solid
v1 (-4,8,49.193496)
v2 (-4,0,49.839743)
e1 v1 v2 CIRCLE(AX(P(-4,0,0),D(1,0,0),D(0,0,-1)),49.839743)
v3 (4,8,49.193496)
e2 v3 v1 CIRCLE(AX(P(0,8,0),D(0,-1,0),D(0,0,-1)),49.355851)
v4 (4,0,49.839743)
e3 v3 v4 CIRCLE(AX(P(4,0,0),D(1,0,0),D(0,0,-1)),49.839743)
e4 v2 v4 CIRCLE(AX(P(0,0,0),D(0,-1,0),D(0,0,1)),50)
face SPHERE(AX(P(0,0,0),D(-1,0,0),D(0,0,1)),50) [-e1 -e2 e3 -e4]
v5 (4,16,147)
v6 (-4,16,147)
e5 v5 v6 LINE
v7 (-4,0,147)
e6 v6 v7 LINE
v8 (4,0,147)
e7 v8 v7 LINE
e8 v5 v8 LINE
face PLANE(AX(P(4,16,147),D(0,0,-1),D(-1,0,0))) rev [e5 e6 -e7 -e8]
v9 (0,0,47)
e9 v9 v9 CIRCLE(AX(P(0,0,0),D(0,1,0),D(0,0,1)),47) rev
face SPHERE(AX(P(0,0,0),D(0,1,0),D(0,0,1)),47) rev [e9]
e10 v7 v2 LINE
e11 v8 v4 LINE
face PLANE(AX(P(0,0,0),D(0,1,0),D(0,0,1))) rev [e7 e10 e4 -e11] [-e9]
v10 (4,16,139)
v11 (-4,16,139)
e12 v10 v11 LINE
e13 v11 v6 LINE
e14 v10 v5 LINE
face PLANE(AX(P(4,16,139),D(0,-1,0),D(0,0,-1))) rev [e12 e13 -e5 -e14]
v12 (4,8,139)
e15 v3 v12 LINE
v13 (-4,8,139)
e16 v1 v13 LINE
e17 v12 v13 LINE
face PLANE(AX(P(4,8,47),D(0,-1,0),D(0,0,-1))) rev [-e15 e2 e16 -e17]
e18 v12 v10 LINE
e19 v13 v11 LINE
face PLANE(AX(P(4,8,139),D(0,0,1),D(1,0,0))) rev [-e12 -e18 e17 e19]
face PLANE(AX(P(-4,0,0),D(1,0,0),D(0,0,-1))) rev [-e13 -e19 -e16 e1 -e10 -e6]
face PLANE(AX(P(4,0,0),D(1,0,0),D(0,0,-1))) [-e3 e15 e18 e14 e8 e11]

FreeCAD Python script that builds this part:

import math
import FreeCAD as App
import Part
import Sketcher


def faces_at(feature, points):
    """Names of the faces that lie closest to the given points."""
    faces = feature.Shape.Faces
    near = lambda p: min(range(len(faces)), key=lambda i: faces[i].distToShape(Part.Vertex(*p))[0])
    return sorted({f"Face{near(p) + 1}" for p in points})

doc = App.newDocument("Part")
body = doc.addObject("PartDesign::Body", "Body")

sketch1 = body.newObject("Sketcher::SketchObject", "Sketch")
sketch1.AttachmentSupport = (doc.getObject("XZ_Plane"), [""])
sketch1.MapMode = "FlatFace"
sketch1.addGeometry([
    Part.LineSegment(App.Vector(-50, 0, 0), App.Vector(50, 0, 0)),
    Part.ArcOfCircle(Part.Circle(App.Vector(0, 0, 0), App.Vector(0, 0, 1), 50), math.radians(180), math.radians(360)),
], False)
sketch1.addConstraint([
    Sketcher.Constraint("Coincident", 0, 1, 1, 1),
    Sketcher.Constraint("Coincident", 1, 2, 0, 2),
    Sketcher.Constraint("Horizontal", 0),
    Sketcher.Constraint("Coincident", 1, 3, -1, 1),
    Sketcher.Constraint("PointOnObject", 0, 1, -1),
    Sketcher.Constraint("Radius", 1, 50.0),
])
revolution = body.newObject("PartDesign::Revolution", "Revolution")
revolution.Profile = sketch1
revolution.ReferenceAxis = (sketch1, ["H_Axis"])
revolution.Angle = 180
doc.recompute()

thickness = body.newObject("PartDesign::Thickness", "Thickness")
thickness.Base = (revolution, faces_at(revolution, [(0, 0, 0)]))
thickness.Value = 3
thickness.Reversed = True
thickness.Join = "Arc"

sketch2 = body.newObject("Sketcher::SketchObject", "Sketch001")
sketch2.AttachmentSupport = (doc.getObject("YZ_Plane"), [""])
sketch2.MapMode = "FlatFace"
sketch2.addGeometry([
    Part.LineSegment(App.Vector(0, 47, 0), App.Vector(8, 47, 0)),
    Part.LineSegment(App.Vector(8, 47, 0), App.Vector(8, 139, 0)),
    Part.LineSegment(App.Vector(8, 139, 0), App.Vector(16, 139, 0)),
    Part.LineSegment(App.Vector(16, 139, 0), App.Vector(16, 147, 0)),
    Part.LineSegment(App.Vector(16, 147, 0), App.Vector(0, 147, 0)),
    Part.LineSegment(App.Vector(0, 147, 0), App.Vector(0, 47, 0)),
], False)
sketch2.addConstraint([
    Sketcher.Constraint("Coincident", 0, 2, 1, 1),
    Sketcher.Constraint("Coincident", 1, 2, 2, 1),
    Sketcher.Constraint("Coincident", 2, 2, 3, 1),
    Sketcher.Constraint("Coincident", 3, 2, 4, 1),
    Sketcher.Constraint("Coincident", 4, 2, 5, 1),
    Sketcher.Constraint("Coincident", 5, 2, 0, 1),
    Sketcher.Constraint("Horizontal", 0),
    Sketcher.Constraint("Vertical", 1),
    Sketcher.Constraint("Horizontal", 2),
    Sketcher.Constraint("Vertical", 3),
    Sketcher.Constraint("Horizontal", 4),
    Sketcher.Constraint("Vertical", 5),
    Sketcher.Constraint("PointOnObject", 4, 2, -2),
    Sketcher.Constraint("Equal", 0, 2),
    Sketcher.Constraint("Equal", 2, 3),
    Sketcher.Constraint("DistanceX", 0, 1, 0, 2, 8.0),
    Sketcher.Constraint("DistanceY", 1, 1, 1, 2, 92.0),
    Sketcher.Constraint("DistanceY", -1, 1, 0, 2, 47.0),
])
pad1 = body.newObject("PartDesign::Pad", "Pad")
pad1.Profile = sketch2
pad1.Length = 8
pad1.Midplane = True

doc.recompute()
